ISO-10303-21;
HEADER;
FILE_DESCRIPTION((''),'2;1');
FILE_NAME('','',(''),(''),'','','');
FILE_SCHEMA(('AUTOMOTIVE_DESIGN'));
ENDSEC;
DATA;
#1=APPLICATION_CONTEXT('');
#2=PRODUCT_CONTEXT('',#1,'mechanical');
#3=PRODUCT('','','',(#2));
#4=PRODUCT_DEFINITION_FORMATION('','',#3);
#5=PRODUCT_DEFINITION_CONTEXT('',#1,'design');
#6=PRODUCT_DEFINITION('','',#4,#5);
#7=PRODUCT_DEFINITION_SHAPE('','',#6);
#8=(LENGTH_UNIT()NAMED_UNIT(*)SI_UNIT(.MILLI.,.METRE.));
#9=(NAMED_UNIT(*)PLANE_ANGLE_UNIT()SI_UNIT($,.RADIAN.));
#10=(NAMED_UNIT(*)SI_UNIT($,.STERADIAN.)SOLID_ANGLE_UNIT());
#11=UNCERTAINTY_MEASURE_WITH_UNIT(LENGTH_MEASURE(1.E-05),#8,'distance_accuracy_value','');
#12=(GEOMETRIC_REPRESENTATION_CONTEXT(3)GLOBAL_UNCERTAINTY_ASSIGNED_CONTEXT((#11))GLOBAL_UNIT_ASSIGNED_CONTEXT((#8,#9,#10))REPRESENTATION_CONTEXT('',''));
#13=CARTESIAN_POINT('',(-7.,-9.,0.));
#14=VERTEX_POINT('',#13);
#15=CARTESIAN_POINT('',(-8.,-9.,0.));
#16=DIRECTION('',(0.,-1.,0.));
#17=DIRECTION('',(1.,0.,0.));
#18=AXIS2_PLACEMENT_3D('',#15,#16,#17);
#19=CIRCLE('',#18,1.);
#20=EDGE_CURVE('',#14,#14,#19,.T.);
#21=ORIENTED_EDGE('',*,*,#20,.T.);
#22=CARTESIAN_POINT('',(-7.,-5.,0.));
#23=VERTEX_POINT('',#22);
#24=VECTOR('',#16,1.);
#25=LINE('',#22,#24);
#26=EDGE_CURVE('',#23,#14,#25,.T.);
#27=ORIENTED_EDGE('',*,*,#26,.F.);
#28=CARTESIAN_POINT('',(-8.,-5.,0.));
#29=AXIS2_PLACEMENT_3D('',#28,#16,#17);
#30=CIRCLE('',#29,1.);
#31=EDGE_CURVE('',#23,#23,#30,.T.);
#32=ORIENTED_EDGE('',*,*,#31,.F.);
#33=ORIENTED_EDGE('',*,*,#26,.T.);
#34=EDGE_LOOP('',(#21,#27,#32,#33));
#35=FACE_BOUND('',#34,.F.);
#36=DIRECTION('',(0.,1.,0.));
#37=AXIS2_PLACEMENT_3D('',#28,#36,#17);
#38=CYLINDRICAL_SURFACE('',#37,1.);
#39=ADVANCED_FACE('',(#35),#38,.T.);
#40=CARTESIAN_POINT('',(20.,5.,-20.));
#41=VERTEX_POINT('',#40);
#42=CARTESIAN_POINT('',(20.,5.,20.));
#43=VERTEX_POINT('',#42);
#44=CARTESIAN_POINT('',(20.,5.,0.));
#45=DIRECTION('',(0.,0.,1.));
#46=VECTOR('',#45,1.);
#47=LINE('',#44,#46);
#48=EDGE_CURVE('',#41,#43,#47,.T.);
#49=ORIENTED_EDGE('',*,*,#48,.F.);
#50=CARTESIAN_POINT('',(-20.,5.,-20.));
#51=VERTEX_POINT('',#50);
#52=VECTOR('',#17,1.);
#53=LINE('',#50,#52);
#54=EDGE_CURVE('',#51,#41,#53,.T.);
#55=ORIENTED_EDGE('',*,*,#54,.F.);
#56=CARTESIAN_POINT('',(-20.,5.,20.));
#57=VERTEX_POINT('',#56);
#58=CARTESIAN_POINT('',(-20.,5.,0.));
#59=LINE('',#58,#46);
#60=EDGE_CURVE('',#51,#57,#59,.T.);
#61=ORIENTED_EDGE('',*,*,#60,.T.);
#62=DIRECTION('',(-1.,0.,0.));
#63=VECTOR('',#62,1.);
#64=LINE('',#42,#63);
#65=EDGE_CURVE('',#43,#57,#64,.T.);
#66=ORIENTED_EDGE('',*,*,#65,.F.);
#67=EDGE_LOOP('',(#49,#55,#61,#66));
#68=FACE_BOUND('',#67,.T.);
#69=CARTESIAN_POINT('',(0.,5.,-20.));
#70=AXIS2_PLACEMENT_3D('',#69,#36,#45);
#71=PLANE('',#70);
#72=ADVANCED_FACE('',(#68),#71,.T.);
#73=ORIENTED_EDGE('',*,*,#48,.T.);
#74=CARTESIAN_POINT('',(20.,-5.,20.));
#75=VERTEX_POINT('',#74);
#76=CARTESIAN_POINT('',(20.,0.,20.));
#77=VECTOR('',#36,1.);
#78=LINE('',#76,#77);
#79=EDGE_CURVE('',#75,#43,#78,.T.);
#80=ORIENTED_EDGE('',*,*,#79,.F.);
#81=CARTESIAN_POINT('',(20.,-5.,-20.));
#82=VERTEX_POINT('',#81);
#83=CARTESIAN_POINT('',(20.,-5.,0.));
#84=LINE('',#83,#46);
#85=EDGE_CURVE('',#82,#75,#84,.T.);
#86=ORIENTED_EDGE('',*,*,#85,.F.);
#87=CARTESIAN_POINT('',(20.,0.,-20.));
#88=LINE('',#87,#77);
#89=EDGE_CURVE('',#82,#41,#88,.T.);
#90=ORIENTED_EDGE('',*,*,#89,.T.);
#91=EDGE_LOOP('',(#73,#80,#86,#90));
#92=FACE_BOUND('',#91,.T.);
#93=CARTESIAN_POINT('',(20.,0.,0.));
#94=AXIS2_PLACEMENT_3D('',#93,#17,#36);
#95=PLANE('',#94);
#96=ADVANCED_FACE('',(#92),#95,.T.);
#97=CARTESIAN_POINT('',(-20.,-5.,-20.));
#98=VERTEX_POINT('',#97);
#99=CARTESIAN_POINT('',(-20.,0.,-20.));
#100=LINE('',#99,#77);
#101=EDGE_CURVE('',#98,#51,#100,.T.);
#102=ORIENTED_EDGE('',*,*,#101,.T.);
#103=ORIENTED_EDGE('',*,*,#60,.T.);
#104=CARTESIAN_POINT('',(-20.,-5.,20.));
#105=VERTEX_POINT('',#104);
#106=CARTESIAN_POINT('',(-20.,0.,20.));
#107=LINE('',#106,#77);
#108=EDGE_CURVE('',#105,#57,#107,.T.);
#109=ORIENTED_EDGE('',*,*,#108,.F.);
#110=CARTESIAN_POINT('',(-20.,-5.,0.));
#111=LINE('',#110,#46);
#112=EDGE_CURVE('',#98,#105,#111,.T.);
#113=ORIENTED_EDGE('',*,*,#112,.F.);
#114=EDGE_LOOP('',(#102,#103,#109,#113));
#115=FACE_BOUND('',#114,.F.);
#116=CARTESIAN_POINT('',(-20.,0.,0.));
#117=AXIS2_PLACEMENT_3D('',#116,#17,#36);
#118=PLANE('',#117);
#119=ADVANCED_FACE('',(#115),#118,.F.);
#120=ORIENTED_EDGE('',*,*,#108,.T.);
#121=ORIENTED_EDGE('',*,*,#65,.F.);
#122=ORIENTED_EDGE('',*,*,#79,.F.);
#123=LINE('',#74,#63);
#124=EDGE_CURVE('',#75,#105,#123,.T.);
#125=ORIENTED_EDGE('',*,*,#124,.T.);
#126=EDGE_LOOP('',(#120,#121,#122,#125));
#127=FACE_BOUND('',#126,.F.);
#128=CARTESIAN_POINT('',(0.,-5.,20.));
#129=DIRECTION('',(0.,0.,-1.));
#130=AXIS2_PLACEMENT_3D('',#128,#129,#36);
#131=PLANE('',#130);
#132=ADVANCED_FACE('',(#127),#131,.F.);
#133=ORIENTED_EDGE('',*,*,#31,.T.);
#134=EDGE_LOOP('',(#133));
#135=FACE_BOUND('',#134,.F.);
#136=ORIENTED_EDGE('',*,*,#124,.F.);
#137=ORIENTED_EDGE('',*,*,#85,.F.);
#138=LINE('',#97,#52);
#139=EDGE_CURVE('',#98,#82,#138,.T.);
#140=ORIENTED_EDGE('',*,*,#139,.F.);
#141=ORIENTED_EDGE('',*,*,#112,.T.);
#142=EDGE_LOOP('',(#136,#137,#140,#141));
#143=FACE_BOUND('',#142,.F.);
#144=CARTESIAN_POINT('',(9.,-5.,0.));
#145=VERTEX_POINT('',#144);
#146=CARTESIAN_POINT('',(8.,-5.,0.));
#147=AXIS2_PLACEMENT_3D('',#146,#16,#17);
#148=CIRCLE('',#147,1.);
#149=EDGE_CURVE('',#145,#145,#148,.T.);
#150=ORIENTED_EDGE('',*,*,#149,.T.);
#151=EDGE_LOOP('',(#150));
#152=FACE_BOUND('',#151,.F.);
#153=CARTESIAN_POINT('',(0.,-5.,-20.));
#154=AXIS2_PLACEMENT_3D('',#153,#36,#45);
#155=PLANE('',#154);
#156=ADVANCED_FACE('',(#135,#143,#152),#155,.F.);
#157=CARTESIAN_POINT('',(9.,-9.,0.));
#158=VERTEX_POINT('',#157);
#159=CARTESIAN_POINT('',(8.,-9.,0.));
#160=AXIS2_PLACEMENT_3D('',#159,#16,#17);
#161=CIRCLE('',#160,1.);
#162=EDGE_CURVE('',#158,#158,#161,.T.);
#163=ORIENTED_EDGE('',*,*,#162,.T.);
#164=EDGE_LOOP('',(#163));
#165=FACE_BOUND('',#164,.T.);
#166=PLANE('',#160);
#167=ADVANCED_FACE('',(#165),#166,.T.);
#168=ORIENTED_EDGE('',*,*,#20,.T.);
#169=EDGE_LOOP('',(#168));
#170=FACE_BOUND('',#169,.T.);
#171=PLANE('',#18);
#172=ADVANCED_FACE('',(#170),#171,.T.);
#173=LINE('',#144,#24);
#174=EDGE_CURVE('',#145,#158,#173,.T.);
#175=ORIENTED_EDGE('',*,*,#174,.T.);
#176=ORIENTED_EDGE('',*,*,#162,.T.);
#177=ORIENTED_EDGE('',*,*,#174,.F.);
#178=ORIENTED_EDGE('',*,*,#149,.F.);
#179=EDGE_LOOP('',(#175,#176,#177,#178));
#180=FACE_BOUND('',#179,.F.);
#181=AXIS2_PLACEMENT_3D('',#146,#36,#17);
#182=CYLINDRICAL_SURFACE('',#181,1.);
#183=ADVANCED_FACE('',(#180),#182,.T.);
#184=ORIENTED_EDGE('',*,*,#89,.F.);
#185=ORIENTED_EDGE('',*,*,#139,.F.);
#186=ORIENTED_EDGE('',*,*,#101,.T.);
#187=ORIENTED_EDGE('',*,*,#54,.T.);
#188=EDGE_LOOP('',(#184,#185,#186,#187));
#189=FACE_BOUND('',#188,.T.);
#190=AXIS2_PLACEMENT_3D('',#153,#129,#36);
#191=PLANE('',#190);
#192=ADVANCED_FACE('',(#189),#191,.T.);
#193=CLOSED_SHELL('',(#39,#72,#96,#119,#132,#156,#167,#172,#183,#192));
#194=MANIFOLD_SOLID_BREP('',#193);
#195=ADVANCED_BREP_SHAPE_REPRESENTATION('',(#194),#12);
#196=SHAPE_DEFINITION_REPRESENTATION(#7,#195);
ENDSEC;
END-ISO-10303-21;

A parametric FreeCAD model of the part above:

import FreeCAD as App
import Part
import Sketcher
from FreeCAD import Vector
Q = App.Units.Quantity


def add_polygon(sketch, points):
    """Adds a closed chain of lines whose ends are joined by coincident constraints."""
    first, n = sketch.GeometryCount, len(points)
    for a, b in zip(points, points[1:] + points[:1]):
        sketch.addGeometry(Part.LineSegment(App.Vector(*a, 0), App.Vector(*b, 0)), False)
    for i in range(n):
        sketch.addConstraint(Sketcher.Constraint("Coincident", first + i, 2, first + (i + 1) % n, 1))

doc = App.newDocument("Part")
body = doc.addObject("PartDesign::Body", "Body")

# Sketch on YZ plane
sketch1 = body.newObject("Sketcher::SketchObject", "Sketch")
sketch1.AttachmentSupport = (doc.getObject("YZ_Plane"), [""])
sketch1.MapMode = "FlatFace"
add_polygon(sketch1, [(-5, 20), (-5, -20), (5, -20), (5, 20)])  # lines 0-3
sketch1.addConstraint([
    Sketcher.Constraint("Vertical", 0),
    Sketcher.Constraint("Horizontal", 1),
    Sketcher.Constraint("Vertical", 2),
    Sketcher.Constraint("Horizontal", 3),
    Sketcher.Constraint("Symmetric", 0, 2, 2, 2, -1, 1),
    Sketcher.Constraint("DistanceX", 1, 1, 1, 2, Q("10 mm")),
    Sketcher.Constraint("DistanceY", 0, 2, 0, 1, Q("40 mm")),
])
pad1 = body.newObject("PartDesign::Pad", "Pad")
pad1.Profile = sketch1
pad1.Type = "TwoLengths"
pad1.Length = 20
pad1.Length2 = 20

# Sketch on XZ plane
sketch2 = body.newObject("Sketcher::SketchObject", "Sketch001")
sketch2.AttachmentSupport = (doc.getObject("XZ_Plane"), [""])
sketch2.MapMode = "FlatFace"
sketch2.AttachmentOffset = App.Placement(Vector(0, 0, 5), App.Rotation())
sketch2.addGeometry([
    Part.Circle(Vector(-8, 0, 0), Vector(0, 0, 1), 1),
    Part.Circle(Vector(8, 0, 0), Vector(0, 0, 1), 1),
], False)
sketch2.addConstraint([
    Sketcher.Constraint("Equal", 0, 1),
    Sketcher.Constraint("Symmetric", 0, 3, 1, 3, -1, 1),
    Sketcher.Constraint("PointOnObject", 0, 3, -1),
    Sketcher.Constraint("Diameter", 0, Q("2 mm")),
    Sketcher.Constraint("DistanceX", 0, 3, -1, 1, Q("8 mm")),
])
pad2 = body.newObject("PartDesign::Pad", "Pad001")
pad2.Profile = sketch2
pad2.Length = 4

doc.recompute()
